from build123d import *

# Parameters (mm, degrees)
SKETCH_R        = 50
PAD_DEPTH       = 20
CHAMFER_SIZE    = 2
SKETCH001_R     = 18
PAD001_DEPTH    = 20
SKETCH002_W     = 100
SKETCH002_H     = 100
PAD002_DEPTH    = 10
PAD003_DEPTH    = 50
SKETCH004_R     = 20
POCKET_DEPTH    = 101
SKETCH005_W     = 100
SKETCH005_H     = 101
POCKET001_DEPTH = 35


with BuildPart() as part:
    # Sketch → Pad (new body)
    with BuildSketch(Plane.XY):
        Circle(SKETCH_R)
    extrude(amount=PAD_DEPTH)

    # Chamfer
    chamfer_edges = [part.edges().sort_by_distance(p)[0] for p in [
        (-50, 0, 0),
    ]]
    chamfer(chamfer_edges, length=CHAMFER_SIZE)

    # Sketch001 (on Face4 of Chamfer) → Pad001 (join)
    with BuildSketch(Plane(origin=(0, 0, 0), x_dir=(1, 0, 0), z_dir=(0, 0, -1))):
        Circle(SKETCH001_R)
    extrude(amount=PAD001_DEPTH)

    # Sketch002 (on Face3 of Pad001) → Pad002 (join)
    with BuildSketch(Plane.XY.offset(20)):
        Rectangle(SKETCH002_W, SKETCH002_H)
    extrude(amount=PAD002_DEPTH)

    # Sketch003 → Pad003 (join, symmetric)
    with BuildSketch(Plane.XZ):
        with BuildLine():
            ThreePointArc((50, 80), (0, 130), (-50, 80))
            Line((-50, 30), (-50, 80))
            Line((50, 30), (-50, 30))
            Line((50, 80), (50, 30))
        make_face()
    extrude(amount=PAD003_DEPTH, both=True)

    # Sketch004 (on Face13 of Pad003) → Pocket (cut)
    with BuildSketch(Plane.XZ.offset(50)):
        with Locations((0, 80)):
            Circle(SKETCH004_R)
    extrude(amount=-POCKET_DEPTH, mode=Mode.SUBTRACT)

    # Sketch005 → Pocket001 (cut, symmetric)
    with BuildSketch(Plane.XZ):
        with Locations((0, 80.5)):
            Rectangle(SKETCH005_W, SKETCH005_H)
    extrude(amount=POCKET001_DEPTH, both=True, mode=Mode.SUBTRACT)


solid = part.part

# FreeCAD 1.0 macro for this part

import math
import FreeCAD as App
import Part
import Sketcher
Q = App.Units.Quantity


def edges_at(feature, points):
    """Names of the edges that pass closest to the given points."""
    edges = feature.Shape.Edges
    near = lambda p: min(range(len(edges)), key=lambda i: edges[i].distToShape(Part.Vertex(*p))[0])
    return sorted({f"Edge{near(p) + 1}" for p in points})

doc = App.newDocument("Part")
params = doc.addObject("Spreadsheet::Sheet", "Params")
for row, (alias, value) in enumerate([
    ("sketch1_diameter", "100 mm"),
    ("pad1_length", "20 mm"),
    ("chamfer_size", "2 mm"),
    ("sketch2_diameter", "36 mm"),
    ("pad2_length", "20 mm"),
    ("sketch3_width", "100 mm"),
    ("pad3_length", "10 mm"),
    ("sketch4_radius", "50 mm"),
    ("sketch4_height", "50 mm"),
    ("pad4_length", "100 mm"),
    ("sketch5_diameter", "40 mm"),
    ("pocket1_length", "101 mm"),
    ("sketch6_width", "100 mm"),
    ("sketch6_height", "101 mm"),
    ("pocket2_length", "70 mm"),
], start=1):
    params.set(f"A{row}", alias)
    params.set(f"B{row}", "=" + value)
    params.setAlias(f"B{row}", alias)

body = doc.addObject("PartDesign::Body", "Body")

# Sketch on XY plane
sketch1 = doc.addObject("Sketcher::SketchObject", "Sketch")
body.addObject(sketch1)
sketch1.AttachmentSupport = (doc.XY_Plane, [""])
sketch1.MapMode = "FlatFace"
sketch1.addGeometry(Part.Circle(App.Vector(0, 0, 0), App.Vector(0, 0, 1), 50), False)
sketch1.addConstraint([
    Sketcher.Constraint("Coincident", 0, 3, -1, 1),
    Sketcher.Constraint("Diameter", 0, Q("100 mm")),
])
sketch1.setExpression("Constraints[1]", "Params.sketch1_diameter")
pad1 = doc.addObject("PartDesign::Pad", "Pad")
body.addObject(pad1)
pad1.Profile = sketch1
pad1.setExpression("Length", "Params.pad1_length")
doc.recompute()

chamfer = doc.addObject("PartDesign::Chamfer", "Chamfer")
body.addObject(chamfer)
chamfer.Base = (pad1, edges_at(pad1, [(-50, 0, 0)]))
chamfer.setExpression("Size", "Params.chamfer_size")

# Sketch on XY plane
sketch2 = doc.addObject("Sketcher::SketchObject", "Sketch001")
body.addObject(sketch2)
sketch2.AttachmentSupport = (doc.XY_Plane, [""])
sketch2.MapMode = "FlatFace"
sketch2.addGeometry(Part.Circle(App.Vector(0, 0, 0), App.Vector(0, 0, 1), 18), False)
sketch2.addConstraint([
    Sketcher.Constraint("Coincident", 0, 3, -1, 1),
    Sketcher.Constraint("Diameter", 0, Q("36 mm")),
])
sketch2.setExpression("Constraints[1]", "Params.sketch2_diameter")
pad2 = doc.addObject("PartDesign::Pad", "Pad001")
body.addObject(pad2)
pad2.Profile = sketch2
pad2.setExpression("Length", "Params.pad2_length")
pad2.Reversed = True

# Sketch on XY plane
sketch3 = doc.addObject("Sketcher::SketchObject", "Sketch002")
body.addObject(sketch3)
sketch3.AttachmentSupport = (doc.XY_Plane, [""])
sketch3.MapMode = "FlatFace"
sketch3.AttachmentOffset = App.Placement(App.Vector(0, 0, 20), App.Rotation())
sketch3.addGeometry([
    Part.LineSegment(App.Vector(-50, 50, 0), App.Vector(-50, -50, 0)),
    Part.LineSegment(App.Vector(-50, -50, 0), App.Vector(50, -50, 0)),
    Part.LineSegment(App.Vector(50, -50, 0), App.Vector(50, 50, 0)),
    Part.LineSegment(App.Vector(50, 50, 0), App.Vector(-50, 50, 0)),
], False)
sketch3.addConstraint([
    Sketcher.Constraint("Coincident", 0, 2, 1, 1),
    Sketcher.Constraint("Coincident", 1, 2, 2, 1),
    Sketcher.Constraint("Coincident", 2, 2, 3, 1),
    Sketcher.Constraint("Coincident", 3, 2, 0, 1),
    Sketcher.Constraint("Vertical", 0),
    Sketcher.Constraint("Horizontal", 1),
    Sketcher.Constraint("Vertical", 2),
    Sketcher.Constraint("Horizontal", 3),
    Sketcher.Constraint("Symmetric", 0, 2, 2, 2, -1, 1),
    Sketcher.Constraint("Equal", 3, 0),
    Sketcher.Constraint("DistanceX", 1, 1, 1, 2, Q("100 mm")),
])
sketch3.setExpression("Constraints[10]", "Params.sketch3_width")
pad3 = doc.addObject("PartDesign::Pad", "Pad002")
body.addObject(pad3)
pad3.Profile = sketch3
pad3.setExpression("Length", "Params.pad3_length")

# Sketch on XZ plane
sketch4 = doc.addObject("Sketcher::SketchObject", "Sketch003")
body.addObject(sketch4)
sketch4.AttachmentSupport = (doc.XZ_Plane, [""])
sketch4.MapMode = "FlatFace"
sketch4.addGeometry([
    Part.ArcOfCircle(Part.Circle(App.Vector(0, 80, 0), App.Vector(0, 0, 1), 50), math.radians(0), math.radians(180)),
    Part.LineSegment(App.Vector(-50, 80, 0), App.Vector(-50, 30, 0)),
    Part.LineSegment(App.Vector(-50, 30, 0), App.Vector(50, 30, 0)),
    Part.LineSegment(App.Vector(50, 30, 0), App.Vector(50, 80, 0)),
], False)
sketch4.addConstraint([
    Sketcher.Constraint("Tangent", 0, 2, 1, 1),
    Sketcher.Constraint("Coincident", 1, 2, 2, 1),
    Sketcher.Constraint("Coincident", 2, 2, 3, 1),
    Sketcher.Constraint("Tangent", 3, 2, 0, 1),
    Sketcher.Constraint("Vertical", 1),
    Sketcher.Constraint("Horizontal", 2),
    Sketcher.Constraint("Vertical", 3),
    Sketcher.Constraint("PointOnObject", 0, 3, -2),
    Sketcher.Constraint("Radius", 0, Q("50 mm")),
    Sketcher.Constraint("DistanceY", 1, 2, 1, 1, Q("50 mm")),
    Sketcher.Constraint("DistanceY", -1, 1, 0, 3, Q("80 mm")),
])
sketch4.setExpression("Constraints[8]", "Params.sketch4_radius")
sketch4.setExpression("Constraints[9]", "Params.sketch4_height")
pad4 = doc.addObject("PartDesign::Pad", "Pad003")
body.addObject(pad4)
pad4.Profile = sketch4
pad4.setExpression("Length", "Params.pad4_length")
pad4.Midplane = True

# Sketch on XZ plane
sketch5 = doc.addObject("Sketcher::SketchObject", "Sketch004")
body.addObject(sketch5)
sketch5.AttachmentSupport = (doc.XZ_Plane, [""])
sketch5.MapMode = "FlatFace"
sketch5.AttachmentOffset = App.Placement(App.Vector(0, 0, 50), App.Rotation())
sketch5.addGeometry(Part.Circle(App.Vector(0, 80, 0), App.Vector(0, 0, 1), 20), False)
sketch5.addConstraint([
    Sketcher.Constraint("PointOnObject", 0, 3, -2),
    Sketcher.Constraint("Diameter", 0, Q("40 mm")),
    Sketcher.Constraint("DistanceY", -1, 1, 0, 3, Q("80 mm")),
])
sketch5.setExpression("Constraints[1]", "Params.sketch5_diameter")
pocket1 = doc.addObject("PartDesign::Pocket", "Pocket")
body.addObject(pocket1)
pocket1.Profile = sketch5
pocket1.setExpression("Length", "Params.pocket1_length")

# Sketch on XZ plane
sketch6 = doc.addObject("Sketcher::SketchObject", "Sketch005")
body.addObject(sketch6)
sketch6.AttachmentSupport = (doc.XZ_Plane, [""])
sketch6.MapMode = "FlatFace"
sketch6.addGeometry([
    Part.LineSegment(App.Vector(-50, 131, 0), App.Vector(-50, 30, 0)),
    Part.LineSegment(App.Vector(-50, 30, 0), App.Vector(50, 30, 0)),
    Part.LineSegment(App.Vector(50, 30, 0), App.Vector(50, 131, 0)),
    Part.LineSegment(App.Vector(50, 131, 0), App.Vector(-50, 131, 0)),
], False)
sketch6.addConstraint([
    Sketcher.Constraint("Coincident", 0, 2, 1, 1),
    Sketcher.Constraint("Coincident", 1, 2, 2, 1),
    Sketcher.Constraint("Coincident", 2, 2, 3, 1),
    Sketcher.Constraint("Coincident", 3, 2, 0, 1),
    Sketcher.Constraint("Vertical", 0),
    Sketcher.Constraint("Horizontal", 1),
    Sketcher.Constraint("Vertical", 2),
    Sketcher.Constraint("Horizontal", 3),
    Sketcher.Constraint("DistanceX", 1, 1, 1, 2, Q("100 mm")),
    Sketcher.Constraint("DistanceY", 0, 2, 0, 1, Q("101 mm")),
    Sketcher.Constraint("DistanceX", 0, 2, -1, 1, Q("50 mm")),
    Sketcher.Constraint("DistanceY", -1, 1, 0, 2, Q("30 mm")),
])
sketch6.setExpression("Constraints[8]", "Params.sketch6_width")
sketch6.setExpression("Constraints[9]", "Params.sketch6_height")
pocket2 = doc.addObject("PartDesign::Pocket", "Pocket001")
body.addObject(pocket2)
pocket2.Profile = sketch6
pocket2.setExpression("Length", "Params.pocket2_length")
pocket2.Midplane = True

doc.recompute()
